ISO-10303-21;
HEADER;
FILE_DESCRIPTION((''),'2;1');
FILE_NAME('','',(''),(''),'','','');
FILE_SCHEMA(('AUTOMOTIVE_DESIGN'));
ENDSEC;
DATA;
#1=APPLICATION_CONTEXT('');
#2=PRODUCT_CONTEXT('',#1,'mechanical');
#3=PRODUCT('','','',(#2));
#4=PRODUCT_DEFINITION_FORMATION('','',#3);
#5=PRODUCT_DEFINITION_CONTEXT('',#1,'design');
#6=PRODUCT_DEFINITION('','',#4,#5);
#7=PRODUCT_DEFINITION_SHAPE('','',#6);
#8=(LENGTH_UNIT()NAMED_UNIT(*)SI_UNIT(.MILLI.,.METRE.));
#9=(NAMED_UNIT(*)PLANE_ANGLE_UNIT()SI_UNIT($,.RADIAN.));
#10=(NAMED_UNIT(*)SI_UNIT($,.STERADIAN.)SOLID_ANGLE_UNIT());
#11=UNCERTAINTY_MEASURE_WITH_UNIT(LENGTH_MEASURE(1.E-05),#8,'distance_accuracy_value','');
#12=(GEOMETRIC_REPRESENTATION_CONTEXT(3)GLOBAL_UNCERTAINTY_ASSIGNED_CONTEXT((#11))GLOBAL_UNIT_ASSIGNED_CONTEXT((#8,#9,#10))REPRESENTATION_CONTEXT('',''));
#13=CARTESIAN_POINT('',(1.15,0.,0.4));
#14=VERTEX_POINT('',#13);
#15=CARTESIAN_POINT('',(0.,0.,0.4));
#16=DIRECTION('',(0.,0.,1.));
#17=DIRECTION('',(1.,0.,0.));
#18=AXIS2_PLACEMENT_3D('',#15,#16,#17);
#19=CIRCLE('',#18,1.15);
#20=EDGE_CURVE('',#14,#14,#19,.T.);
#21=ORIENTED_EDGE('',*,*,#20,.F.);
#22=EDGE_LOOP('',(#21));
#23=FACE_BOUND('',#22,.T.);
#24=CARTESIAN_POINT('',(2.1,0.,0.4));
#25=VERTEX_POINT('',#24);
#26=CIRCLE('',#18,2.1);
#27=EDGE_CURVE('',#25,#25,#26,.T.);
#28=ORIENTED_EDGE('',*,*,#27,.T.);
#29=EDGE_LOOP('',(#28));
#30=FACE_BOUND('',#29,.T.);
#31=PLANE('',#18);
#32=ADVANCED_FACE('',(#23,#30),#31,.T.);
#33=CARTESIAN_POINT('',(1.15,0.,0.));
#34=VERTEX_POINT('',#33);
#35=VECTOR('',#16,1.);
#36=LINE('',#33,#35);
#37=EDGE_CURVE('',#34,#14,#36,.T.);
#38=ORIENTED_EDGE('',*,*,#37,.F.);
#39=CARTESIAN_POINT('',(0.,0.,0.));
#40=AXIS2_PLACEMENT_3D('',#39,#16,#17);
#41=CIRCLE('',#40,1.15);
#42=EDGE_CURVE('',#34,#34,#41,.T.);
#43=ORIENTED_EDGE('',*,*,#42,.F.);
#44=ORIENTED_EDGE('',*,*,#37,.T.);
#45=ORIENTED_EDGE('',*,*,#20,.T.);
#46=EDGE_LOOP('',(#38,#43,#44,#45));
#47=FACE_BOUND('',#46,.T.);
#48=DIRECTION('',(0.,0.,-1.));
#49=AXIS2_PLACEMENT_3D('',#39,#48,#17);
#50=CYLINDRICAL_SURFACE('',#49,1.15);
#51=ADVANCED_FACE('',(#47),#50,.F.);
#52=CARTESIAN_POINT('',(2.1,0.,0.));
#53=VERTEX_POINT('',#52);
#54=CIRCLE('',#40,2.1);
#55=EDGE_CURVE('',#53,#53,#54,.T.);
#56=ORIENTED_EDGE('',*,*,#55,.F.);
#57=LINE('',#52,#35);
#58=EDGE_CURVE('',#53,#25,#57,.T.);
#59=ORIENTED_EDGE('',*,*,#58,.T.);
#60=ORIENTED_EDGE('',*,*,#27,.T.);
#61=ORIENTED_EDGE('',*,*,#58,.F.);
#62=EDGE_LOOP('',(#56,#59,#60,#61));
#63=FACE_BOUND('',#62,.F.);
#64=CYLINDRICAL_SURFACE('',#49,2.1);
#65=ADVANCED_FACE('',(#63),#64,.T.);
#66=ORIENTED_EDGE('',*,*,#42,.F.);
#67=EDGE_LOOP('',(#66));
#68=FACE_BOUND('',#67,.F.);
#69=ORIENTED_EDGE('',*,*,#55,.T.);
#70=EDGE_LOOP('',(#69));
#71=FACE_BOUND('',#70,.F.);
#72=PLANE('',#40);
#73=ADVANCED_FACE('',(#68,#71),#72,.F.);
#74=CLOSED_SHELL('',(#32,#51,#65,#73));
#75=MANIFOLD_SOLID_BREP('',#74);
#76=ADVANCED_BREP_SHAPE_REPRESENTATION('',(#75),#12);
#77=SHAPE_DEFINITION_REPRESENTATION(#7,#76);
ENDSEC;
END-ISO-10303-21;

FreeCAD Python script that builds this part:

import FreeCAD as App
import Part
import Sketcher
from FreeCAD import Vector
Q = App.Units.Quantity

doc = App.newDocument("Part")
params = doc.addObject("Spreadsheet::Sheet", "Params")
for row, (alias, value) in enumerate([
    ("sketch1_diameter", "4.2 mm"),
    ("sketch1_diameter2", "2.3 mm"),
    ("pad1_length", "0.4 mm"),
], start=1):
    params.set(f"A{row}", alias)
    params.set(f"B{row}", "=" + value)
    params.setAlias(f"B{row}", alias)

body = doc.addObject("PartDesign::Body", "Body")

sketch1 = body.newObject("Sketcher::SketchObject", "Sketch")
sketch1.AttachmentSupport = (doc.getObject("XY_Plane"), [""])
sketch1.MapMode = "FlatFace"
sketch1.addGeometry(Part.Circle(Vector(0, 0, 0), Vector(0, 0, 1), 2.1), False)
sketch1.addGeometry(Part.Circle(Vector(0, 0, 0), Vector(0, 0, 1), 1.1), False)
sketch1.addConstraint(Sketcher.Constraint("Coincident", 0, 3, -1, 1))
sketch1.addConstraint(Sketcher.Constraint("Coincident", 1, 3, -1, 1))
sketch1.addConstraint(Sketcher.Constraint("Diameter", 0, Q("4.2 mm")))
sketch1.addConstraint(Sketcher.Constraint("Diameter", 1, Q("2.3 mm")))
sketch1.setExpression("Constraints[2]", "Params.sketch1_diameter")
sketch1.setExpression("Constraints[3]", "Params.sketch1_diameter2")
pad1 = body.newObject("PartDesign::Pad", "Pad")
pad1.Profile = sketch1
pad1.setExpression("Length", "Params.pad1_length")

doc.recompute()
